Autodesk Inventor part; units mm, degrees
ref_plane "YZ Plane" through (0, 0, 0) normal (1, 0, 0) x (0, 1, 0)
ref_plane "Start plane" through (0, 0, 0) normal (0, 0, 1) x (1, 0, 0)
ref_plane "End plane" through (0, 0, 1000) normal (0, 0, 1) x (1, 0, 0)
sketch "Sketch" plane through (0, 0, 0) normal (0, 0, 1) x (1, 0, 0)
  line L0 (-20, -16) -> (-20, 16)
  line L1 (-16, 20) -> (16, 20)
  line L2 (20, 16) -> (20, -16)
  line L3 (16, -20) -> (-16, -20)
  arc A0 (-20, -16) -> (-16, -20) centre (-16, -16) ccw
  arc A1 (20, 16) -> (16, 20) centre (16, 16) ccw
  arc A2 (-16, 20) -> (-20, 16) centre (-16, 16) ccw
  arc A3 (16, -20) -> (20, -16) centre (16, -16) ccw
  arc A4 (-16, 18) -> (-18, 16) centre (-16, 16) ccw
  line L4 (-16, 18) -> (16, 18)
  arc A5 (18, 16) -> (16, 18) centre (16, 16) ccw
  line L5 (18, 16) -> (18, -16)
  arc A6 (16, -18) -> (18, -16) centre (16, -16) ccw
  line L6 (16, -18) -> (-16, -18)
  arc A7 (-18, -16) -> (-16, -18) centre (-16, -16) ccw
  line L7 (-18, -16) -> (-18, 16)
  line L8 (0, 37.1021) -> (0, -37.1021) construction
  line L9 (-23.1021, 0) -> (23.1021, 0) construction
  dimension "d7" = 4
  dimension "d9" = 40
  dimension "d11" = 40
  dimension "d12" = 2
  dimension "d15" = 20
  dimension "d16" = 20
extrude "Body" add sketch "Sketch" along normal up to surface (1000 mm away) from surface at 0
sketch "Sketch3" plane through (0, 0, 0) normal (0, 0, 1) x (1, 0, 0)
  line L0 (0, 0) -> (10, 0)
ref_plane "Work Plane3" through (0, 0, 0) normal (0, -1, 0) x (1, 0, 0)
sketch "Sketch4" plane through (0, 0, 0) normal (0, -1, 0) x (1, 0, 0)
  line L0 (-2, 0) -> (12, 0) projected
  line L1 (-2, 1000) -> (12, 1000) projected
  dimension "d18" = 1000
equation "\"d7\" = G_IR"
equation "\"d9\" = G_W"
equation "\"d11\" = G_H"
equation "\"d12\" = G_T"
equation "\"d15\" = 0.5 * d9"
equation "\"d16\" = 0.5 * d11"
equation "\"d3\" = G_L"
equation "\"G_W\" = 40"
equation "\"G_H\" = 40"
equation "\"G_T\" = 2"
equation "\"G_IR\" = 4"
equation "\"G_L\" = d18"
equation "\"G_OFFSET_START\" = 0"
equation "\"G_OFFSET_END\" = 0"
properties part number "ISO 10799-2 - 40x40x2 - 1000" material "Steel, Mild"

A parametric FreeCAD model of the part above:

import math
import FreeCAD as App
import Part
import Sketcher
from FreeCAD import Vector

doc = App.newDocument("Part")
body = doc.addObject("PartDesign::Body", "Body")

sketch1 = doc.addObject("Sketcher::SketchObject", "Sketch")
body.addObject(sketch1)
sketch1.AttachmentSupport = (doc.XY_Plane, [""])
sketch1.MapMode = "FlatFace"
sketch1.addGeometry([
    Part.LineSegment(Vector(-20, 16, 0), Vector(-20, -16, 0)),
    Part.ArcOfCircle(Part.Circle(Vector(-16, -16, 0), Vector(0, 0, 1), 4), math.radians(180), math.radians(270)),
    Part.LineSegment(Vector(-16, -20, 0), Vector(16, -20, 0)),
    Part.ArcOfCircle(Part.Circle(Vector(16, -16, 0), Vector(0, 0, 1), 4), math.radians(-90), math.radians(0)),
    Part.LineSegment(Vector(20, -16, 0), Vector(20, 16, 0)),
    Part.ArcOfCircle(Part.Circle(Vector(16, 16, 0), Vector(0, 0, 1), 4), math.radians(0), math.radians(90)),
    Part.LineSegment(Vector(16, 20, 0), Vector(-16, 20, 0)),
    Part.ArcOfCircle(Part.Circle(Vector(-16, 16, 0), Vector(0, 0, 1), 4), math.radians(90), math.radians(180)),
    Part.ArcOfCircle(Part.Circle(Vector(-16, 16, 0), Vector(0, 0, 1), 2), math.radians(90), math.radians(180)),
    Part.LineSegment(Vector(-16, 18, 0), Vector(16, 18, 0)),
    Part.ArcOfCircle(Part.Circle(Vector(16, 16, 0), Vector(0, 0, 1), 2), math.radians(0), math.radians(90)),
    Part.LineSegment(Vector(18, 16, 0), Vector(18, -16, 0)),
    Part.ArcOfCircle(Part.Circle(Vector(16, -16, 0), Vector(0, 0, 1), 2), math.radians(-90), math.radians(0)),
    Part.LineSegment(Vector(16, -18, 0), Vector(-16, -18, 0)),
    Part.ArcOfCircle(Part.Circle(Vector(-16, -16, 0), Vector(0, 0, 1), 2), math.radians(180), math.radians(270)),
    Part.LineSegment(Vector(-18, -16, 0), Vector(-18, 16, 0)),
], False)
sketch1.addConstraint([
    Sketcher.Constraint("Tangent", 0, 2, 1, 1),
    Sketcher.Constraint("Tangent", 1, 2, 2, 1),
    Sketcher.Constraint("Tangent", 2, 2, 3, 1),
    Sketcher.Constraint("Tangent", 3, 2, 4, 1),
    Sketcher.Constraint("Tangent", 4, 2, 5, 1),
    Sketcher.Constraint("Tangent", 5, 2, 6, 1),
    Sketcher.Constraint("Tangent", 6, 2, 7, 1),
    Sketcher.Constraint("Tangent", 7, 2, 0, 1),
    Sketcher.Constraint("Tangent", 8, 1, 9, 1),
    Sketcher.Constraint("Tangent", 9, 2, 10, 2),
    Sketcher.Constraint("Tangent", 10, 1, 11, 1),
    Sketcher.Constraint("Tangent", 11, 2, 12, 2),
    Sketcher.Constraint("Tangent", 12, 1, 13, 1),
    Sketcher.Constraint("Tangent", 13, 2, 14, 2),
    Sketcher.Constraint("Tangent", 14, 1, 15, 1),
    Sketcher.Constraint("Tangent", 15, 2, 8, 2),
    Sketcher.Constraint("Vertical", 0),
    Sketcher.Constraint("Horizontal", 2),
    Sketcher.Constraint("Vertical", 4),
    Sketcher.Constraint("Horizontal", 6),
    Sketcher.Constraint("Horizontal", 9),
    Sketcher.Constraint("Vertical", 11),
    Sketcher.Constraint("Horizontal", 13),
    Sketcher.Constraint("Vertical", 15),
    Sketcher.Constraint("Coincident", 8, 3, 7, 3),
    Sketcher.Constraint("Coincident", 10, 3, 5, 3),
    Sketcher.Constraint("Coincident", 12, 3, 3, 3),
    Sketcher.Constraint("Equal", 1, 3),
    Sketcher.Constraint("Equal", 3, 5),
    Sketcher.Constraint("Equal", 5, 7),
    Sketcher.Constraint("Equal", 12, 14),
    Sketcher.Constraint("Symmetric", 1, 3, 5, 3, -1, 1),
    Sketcher.Constraint("Equal", 13, 0),
    Sketcher.Constraint("Radius", 1, 4.0),
    Sketcher.Constraint("Radius", 8, 2.0),
    Sketcher.Constraint("DistanceX", 0, 2, -1, 1, 20.0),
])
pad1 = doc.addObject("PartDesign::Pad", "Pad")
body.addObject(pad1)
pad1.Profile = sketch1
pad1.Length = 1000

doc.recompute()
